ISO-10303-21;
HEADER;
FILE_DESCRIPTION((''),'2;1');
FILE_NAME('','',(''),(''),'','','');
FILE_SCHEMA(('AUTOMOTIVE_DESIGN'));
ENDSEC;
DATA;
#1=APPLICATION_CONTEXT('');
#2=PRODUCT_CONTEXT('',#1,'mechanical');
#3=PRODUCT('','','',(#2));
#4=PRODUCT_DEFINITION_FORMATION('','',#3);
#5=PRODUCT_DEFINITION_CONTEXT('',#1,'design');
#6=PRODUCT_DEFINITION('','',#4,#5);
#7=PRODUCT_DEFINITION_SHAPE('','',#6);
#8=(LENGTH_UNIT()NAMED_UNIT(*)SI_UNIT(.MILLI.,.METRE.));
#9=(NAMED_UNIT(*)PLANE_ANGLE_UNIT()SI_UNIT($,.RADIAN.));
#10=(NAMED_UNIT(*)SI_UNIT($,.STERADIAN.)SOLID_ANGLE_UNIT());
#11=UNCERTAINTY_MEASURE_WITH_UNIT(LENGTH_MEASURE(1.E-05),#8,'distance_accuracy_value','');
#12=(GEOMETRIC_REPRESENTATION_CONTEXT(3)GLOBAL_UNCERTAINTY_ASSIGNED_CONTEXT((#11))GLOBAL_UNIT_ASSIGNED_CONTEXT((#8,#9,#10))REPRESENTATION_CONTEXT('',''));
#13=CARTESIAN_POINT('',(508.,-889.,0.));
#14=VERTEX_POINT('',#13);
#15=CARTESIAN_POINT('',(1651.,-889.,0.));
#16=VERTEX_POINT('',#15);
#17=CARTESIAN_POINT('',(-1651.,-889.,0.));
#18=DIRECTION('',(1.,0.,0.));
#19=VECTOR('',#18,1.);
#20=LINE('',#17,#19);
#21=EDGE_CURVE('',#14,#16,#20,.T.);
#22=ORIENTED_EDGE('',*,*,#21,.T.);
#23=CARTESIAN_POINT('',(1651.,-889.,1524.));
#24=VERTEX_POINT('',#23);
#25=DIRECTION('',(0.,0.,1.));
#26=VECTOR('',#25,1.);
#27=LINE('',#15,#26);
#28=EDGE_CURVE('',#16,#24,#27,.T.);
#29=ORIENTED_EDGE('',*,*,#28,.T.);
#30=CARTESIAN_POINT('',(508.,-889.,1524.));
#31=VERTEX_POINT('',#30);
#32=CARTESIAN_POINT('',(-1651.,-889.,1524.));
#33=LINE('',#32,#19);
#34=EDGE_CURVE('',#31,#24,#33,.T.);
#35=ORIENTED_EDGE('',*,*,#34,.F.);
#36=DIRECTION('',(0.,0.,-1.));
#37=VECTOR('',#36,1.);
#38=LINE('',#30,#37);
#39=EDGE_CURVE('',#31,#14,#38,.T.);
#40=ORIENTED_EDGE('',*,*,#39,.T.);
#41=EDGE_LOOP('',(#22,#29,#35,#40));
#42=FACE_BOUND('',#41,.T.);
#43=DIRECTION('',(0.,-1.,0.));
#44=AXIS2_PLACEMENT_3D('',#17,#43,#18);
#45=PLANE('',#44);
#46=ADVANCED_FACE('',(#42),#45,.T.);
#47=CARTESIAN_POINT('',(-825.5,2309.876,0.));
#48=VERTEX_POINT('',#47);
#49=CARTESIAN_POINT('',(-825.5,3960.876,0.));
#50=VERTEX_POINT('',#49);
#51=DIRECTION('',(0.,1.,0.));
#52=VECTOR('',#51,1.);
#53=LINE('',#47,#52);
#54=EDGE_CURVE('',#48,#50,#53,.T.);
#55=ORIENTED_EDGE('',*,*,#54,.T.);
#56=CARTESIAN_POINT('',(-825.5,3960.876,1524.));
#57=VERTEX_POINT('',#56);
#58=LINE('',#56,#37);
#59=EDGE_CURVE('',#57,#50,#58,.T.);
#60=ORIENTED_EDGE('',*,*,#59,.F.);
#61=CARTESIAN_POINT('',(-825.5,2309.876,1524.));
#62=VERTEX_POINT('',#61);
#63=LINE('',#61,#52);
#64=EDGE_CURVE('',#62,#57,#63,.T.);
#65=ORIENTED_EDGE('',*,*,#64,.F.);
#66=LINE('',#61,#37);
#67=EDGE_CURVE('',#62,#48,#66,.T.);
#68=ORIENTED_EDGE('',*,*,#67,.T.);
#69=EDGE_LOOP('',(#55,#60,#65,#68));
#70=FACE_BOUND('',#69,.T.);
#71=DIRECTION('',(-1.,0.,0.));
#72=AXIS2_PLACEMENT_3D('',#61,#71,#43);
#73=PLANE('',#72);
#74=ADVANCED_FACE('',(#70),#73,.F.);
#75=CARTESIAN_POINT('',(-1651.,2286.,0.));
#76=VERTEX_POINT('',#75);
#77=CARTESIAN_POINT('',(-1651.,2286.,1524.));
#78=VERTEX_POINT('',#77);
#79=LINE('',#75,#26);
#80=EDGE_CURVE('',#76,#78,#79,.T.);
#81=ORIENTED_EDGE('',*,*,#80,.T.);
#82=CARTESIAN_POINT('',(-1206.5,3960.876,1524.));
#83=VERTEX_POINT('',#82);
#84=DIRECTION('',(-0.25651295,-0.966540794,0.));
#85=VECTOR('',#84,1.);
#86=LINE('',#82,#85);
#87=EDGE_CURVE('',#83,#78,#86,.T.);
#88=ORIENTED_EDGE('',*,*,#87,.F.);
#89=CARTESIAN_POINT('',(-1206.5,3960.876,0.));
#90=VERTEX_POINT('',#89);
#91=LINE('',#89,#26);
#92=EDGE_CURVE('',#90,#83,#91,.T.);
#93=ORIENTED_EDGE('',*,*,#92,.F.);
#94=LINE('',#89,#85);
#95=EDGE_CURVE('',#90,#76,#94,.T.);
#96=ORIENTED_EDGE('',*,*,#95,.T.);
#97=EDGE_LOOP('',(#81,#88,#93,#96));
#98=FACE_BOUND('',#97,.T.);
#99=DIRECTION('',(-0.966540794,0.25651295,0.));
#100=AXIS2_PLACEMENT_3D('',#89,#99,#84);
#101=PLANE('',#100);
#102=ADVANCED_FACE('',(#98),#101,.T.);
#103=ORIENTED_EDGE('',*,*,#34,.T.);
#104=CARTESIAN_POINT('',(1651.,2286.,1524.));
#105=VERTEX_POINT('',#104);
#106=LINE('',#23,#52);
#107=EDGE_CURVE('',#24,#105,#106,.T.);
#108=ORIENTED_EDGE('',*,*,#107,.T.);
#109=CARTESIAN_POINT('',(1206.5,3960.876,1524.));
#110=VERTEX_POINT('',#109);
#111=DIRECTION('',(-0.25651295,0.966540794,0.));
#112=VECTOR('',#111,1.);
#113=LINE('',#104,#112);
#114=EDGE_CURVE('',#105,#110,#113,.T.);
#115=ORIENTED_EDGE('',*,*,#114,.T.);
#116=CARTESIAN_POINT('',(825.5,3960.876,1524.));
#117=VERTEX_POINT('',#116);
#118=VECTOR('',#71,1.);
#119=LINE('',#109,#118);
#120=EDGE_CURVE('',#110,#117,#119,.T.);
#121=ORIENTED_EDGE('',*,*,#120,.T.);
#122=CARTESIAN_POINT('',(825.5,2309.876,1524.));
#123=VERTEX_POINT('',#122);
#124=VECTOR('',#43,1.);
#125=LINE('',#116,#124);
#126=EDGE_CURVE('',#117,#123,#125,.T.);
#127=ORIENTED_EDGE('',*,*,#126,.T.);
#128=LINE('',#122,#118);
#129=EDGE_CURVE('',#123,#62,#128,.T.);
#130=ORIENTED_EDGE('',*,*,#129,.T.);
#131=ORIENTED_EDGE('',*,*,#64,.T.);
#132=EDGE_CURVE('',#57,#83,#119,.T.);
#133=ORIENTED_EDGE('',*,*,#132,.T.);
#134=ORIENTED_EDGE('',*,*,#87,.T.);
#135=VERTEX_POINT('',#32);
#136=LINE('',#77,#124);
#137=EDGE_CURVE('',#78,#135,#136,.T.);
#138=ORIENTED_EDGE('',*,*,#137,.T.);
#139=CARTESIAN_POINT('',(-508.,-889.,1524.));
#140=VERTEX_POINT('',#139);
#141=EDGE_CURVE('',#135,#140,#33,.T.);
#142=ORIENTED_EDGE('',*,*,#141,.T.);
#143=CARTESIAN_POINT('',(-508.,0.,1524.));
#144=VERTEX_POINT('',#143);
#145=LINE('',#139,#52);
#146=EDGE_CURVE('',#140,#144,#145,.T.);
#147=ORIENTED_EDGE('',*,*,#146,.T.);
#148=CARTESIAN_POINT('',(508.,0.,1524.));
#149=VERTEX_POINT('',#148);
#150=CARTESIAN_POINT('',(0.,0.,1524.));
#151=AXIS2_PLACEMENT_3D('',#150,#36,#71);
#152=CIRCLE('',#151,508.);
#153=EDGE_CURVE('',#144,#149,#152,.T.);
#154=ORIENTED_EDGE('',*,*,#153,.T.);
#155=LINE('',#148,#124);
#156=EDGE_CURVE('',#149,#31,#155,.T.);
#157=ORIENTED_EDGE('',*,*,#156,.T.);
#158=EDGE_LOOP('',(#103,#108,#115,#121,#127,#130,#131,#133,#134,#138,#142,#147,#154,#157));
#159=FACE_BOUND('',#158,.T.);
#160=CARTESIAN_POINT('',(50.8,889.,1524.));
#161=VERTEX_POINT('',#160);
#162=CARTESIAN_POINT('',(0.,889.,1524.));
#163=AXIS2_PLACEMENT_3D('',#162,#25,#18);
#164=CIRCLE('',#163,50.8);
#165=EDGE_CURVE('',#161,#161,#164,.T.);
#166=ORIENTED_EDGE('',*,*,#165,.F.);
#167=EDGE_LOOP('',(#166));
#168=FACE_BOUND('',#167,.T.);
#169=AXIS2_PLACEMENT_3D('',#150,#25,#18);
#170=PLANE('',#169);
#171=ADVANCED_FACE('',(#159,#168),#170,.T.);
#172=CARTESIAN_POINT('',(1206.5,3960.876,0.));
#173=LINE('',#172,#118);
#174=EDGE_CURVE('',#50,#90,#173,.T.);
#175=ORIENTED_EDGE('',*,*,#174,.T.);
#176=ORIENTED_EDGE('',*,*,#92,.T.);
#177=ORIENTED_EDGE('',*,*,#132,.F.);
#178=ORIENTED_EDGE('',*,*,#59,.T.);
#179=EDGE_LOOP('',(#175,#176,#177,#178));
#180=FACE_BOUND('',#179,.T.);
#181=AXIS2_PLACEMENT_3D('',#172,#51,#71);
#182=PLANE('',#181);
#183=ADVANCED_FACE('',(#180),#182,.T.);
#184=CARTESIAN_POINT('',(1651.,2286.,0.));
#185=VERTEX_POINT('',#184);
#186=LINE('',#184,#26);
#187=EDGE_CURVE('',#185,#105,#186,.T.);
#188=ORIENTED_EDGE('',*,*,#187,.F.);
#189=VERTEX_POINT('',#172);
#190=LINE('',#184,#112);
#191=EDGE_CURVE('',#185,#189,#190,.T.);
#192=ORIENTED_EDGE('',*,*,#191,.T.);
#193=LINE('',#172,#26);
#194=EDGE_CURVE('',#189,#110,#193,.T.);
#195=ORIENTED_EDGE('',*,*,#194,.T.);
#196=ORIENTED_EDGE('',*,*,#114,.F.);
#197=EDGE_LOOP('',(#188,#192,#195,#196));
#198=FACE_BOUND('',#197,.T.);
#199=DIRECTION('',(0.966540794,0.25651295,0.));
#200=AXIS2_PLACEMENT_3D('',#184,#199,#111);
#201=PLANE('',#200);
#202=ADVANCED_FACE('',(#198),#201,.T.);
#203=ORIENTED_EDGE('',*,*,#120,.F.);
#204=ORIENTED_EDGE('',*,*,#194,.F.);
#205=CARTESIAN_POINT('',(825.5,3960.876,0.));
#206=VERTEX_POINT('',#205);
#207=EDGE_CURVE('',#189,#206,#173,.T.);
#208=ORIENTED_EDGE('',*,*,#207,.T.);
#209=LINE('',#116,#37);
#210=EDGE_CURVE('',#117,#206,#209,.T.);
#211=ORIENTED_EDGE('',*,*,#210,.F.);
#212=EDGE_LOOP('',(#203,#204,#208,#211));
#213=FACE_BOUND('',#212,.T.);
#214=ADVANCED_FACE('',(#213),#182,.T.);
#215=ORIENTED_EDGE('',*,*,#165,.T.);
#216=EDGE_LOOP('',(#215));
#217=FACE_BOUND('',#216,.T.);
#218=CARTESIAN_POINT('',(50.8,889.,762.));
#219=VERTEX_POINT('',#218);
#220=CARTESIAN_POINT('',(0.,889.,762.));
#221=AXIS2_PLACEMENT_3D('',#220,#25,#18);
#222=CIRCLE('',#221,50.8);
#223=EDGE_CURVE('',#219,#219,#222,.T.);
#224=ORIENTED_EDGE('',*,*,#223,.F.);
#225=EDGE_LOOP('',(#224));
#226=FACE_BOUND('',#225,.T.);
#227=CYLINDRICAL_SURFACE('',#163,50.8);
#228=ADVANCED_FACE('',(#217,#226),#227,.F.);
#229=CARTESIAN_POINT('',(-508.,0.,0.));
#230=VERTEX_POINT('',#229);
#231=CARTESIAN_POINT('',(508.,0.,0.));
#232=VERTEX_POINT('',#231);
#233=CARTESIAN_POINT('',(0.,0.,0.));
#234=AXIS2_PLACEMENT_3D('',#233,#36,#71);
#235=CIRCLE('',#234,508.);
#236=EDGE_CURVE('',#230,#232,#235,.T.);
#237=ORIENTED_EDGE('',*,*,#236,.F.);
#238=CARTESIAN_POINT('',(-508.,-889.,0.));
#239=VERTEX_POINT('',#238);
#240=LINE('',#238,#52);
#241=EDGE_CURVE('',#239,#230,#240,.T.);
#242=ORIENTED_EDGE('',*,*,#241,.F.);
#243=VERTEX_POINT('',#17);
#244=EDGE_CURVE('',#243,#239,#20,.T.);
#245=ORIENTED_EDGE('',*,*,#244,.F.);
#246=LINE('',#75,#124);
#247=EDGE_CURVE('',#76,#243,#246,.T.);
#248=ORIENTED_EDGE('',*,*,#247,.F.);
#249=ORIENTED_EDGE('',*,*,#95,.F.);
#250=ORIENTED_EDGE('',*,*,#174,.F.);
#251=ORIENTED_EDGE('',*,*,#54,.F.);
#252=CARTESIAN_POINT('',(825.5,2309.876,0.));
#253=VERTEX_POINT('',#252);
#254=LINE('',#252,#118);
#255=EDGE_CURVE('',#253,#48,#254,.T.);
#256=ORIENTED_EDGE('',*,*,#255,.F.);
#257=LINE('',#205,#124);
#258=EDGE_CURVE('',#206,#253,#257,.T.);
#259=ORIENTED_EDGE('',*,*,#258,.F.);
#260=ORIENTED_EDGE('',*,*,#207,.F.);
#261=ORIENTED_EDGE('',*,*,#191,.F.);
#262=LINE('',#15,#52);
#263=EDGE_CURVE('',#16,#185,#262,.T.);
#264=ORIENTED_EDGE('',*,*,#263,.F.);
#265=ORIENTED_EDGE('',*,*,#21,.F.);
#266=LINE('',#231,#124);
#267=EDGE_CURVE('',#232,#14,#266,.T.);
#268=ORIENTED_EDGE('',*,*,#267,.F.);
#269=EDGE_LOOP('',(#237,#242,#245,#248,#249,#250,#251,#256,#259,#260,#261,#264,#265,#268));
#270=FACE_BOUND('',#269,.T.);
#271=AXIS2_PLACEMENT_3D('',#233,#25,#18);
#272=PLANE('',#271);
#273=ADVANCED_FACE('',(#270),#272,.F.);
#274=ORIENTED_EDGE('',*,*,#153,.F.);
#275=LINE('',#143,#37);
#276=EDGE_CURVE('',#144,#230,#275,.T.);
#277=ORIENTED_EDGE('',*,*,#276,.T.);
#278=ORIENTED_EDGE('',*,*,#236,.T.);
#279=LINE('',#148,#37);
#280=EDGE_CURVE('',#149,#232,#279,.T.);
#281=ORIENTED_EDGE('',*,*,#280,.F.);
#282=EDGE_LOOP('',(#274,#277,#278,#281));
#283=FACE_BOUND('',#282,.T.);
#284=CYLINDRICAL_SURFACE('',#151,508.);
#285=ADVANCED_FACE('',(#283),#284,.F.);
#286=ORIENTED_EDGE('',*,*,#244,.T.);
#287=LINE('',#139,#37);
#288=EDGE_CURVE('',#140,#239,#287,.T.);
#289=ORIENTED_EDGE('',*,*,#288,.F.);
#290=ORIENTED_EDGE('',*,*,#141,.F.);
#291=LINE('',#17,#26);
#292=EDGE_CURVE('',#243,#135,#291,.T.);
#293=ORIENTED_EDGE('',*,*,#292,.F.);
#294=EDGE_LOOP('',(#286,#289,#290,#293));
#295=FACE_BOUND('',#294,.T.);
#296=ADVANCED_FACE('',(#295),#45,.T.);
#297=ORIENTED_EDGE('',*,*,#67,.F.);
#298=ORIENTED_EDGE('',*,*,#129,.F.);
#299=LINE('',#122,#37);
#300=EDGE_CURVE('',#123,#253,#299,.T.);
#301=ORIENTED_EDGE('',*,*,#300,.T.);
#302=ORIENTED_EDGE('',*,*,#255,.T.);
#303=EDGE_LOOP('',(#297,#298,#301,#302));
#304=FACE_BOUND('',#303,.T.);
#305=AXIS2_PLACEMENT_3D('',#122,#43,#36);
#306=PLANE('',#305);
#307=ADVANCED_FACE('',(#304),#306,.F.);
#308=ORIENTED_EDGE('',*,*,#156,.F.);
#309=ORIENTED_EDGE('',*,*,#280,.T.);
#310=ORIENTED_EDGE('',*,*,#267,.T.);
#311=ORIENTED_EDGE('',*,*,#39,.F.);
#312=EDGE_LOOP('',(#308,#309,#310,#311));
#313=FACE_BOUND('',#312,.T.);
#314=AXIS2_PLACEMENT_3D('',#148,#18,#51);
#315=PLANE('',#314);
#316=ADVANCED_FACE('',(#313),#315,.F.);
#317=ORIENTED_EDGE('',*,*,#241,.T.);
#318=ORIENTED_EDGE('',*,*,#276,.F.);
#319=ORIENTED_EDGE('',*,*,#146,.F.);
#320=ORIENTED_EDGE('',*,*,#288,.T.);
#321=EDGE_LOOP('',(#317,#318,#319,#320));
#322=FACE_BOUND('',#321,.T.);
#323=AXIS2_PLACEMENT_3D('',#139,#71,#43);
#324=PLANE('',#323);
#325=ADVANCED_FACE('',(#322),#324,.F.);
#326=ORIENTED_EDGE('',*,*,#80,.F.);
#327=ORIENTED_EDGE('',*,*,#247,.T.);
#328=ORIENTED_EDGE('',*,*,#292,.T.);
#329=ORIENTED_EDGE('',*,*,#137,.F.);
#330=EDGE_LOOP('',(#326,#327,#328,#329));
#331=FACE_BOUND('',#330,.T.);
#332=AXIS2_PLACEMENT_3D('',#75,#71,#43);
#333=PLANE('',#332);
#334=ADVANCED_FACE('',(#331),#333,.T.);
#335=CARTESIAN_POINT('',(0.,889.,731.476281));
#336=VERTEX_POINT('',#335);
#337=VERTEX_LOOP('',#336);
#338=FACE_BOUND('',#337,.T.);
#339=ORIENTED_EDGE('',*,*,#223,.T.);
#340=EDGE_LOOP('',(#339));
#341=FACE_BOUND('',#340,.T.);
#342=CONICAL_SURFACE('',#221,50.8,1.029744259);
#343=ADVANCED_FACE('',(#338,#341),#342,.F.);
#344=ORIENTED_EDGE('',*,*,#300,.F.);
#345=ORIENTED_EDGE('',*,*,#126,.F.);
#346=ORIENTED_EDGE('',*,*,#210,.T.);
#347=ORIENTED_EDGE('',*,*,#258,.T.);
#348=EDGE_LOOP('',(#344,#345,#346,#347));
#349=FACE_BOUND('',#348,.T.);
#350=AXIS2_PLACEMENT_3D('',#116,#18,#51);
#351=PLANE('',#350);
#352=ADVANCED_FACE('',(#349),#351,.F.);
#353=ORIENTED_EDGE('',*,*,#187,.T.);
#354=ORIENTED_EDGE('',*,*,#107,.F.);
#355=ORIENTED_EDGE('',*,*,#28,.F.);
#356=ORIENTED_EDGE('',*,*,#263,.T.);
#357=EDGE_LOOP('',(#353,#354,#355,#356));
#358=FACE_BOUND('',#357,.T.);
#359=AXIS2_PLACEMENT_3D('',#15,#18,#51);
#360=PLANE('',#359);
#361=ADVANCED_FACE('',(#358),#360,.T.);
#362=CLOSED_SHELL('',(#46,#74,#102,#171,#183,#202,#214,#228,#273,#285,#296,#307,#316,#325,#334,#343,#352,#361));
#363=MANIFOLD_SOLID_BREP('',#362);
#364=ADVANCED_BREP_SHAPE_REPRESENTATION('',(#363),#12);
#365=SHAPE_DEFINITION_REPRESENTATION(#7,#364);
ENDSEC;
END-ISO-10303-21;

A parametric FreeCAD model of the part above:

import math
import FreeCAD as App
import Part
import Sketcher

V = App.Vector
Q = App.Units.Quantity

doc = App.newDocument("Part")
params = doc.addObject("Spreadsheet::Sheet", "Params")
for row, (alias, value) in enumerate([
    ("sketch1_width", "130 in"),
    ("sketch1_width2", "95 in"),
    ("sketch1_height", "125 in"),
    ("pad1_length", "60 in"),
    ("sketch2_radius", "20 in"),
    ("sketch2_height", "35 in"),
    ("sketch3_width", "65 in"),
    ("sketch4_diameter", "4 in"),
    ("hole_diameter", "4 in"),
    ("hole_depth", "30 in"),
], start=1):
    params.set(f"A{row}", alias)
    params.set(f"B{row}", "=" + value)
    params.setAlias(f"B{row}", alias)

body = doc.addObject("PartDesign::Body", "Body")

# Sketch on XY plane
sketch1 = doc.addObject("Sketcher::SketchObject", "Sketch")
body.addObject(sketch1)
sketch1.AttachmentSupport = (doc.XY_Plane, [""])
sketch1.MapMode = "FlatFace"
sketch1.AttachmentOffset = App.Placement(V(0, 0, 60 * 25.4), App.Rotation())
sketch1.addGeometry(Part.LineSegment(V(-1651, 2286, 0), V(-1651, -889, 0)), False)
sketch1.addGeometry(Part.LineSegment(V(-1651, -889, 0), V(1651, -889, 0)), False)
sketch1.addGeometry(Part.LineSegment(V(1651, -889, 0), V(1651, 2286, 0)), False)
sketch1.addGeometry(Part.LineSegment(V(1651, 2286, 0), V(1206, 3961, 0)), False)
sketch1.addGeometry(Part.LineSegment(V(1206, 3961, 0), V(-1206, 3961, 0)), False)
sketch1.addGeometry(Part.LineSegment(V(-1206, 3961, 0), V(-1651, 2286, 0)), False)
sketch1.addConstraint(Sketcher.Constraint("Coincident", 0, 2, 1, 1))
sketch1.addConstraint(Sketcher.Constraint("Coincident", 1, 2, 2, 1))
sketch1.addConstraint(Sketcher.Constraint("Coincident", 2, 2, 3, 1))
sketch1.addConstraint(Sketcher.Constraint("Coincident", 3, 2, 4, 1))
sketch1.addConstraint(Sketcher.Constraint("Coincident", 4, 2, 5, 1))
sketch1.addConstraint(Sketcher.Constraint("Coincident", 5, 2, 0, 1))
sketch1.addConstraint(Sketcher.Constraint("Vertical", 0))
sketch1.addConstraint(Sketcher.Constraint("Horizontal", 1))
sketch1.addConstraint(Sketcher.Constraint("Vertical", 2))
sketch1.addConstraint(Sketcher.Constraint("Horizontal", 4))
sketch1.addConstraint(Sketcher.Constraint("Symmetric", 2, 2, 5, 2, -2))
sketch1.addConstraint(Sketcher.Constraint("Equal", 3, 5))
sketch1.addConstraint(Sketcher.Constraint("DistanceX", 1, 1, 1, 2, Q("130 in")))
sketch1.addConstraint(Sketcher.Constraint("DistanceX", 4, 2, 4, 1, Q("95 in")))
sketch1.addConstraint(Sketcher.Constraint("DistanceY", 0, 2, 0, 1, Q("125 in")))
sketch1.addConstraint(Sketcher.Constraint("DistanceY", 0, 2, -1, 1, Q("35 in")))
sketch1.addConstraint(Sketcher.Constraint("DistanceY", -1, 1, 3, 2, Q("155.94 in")))
sketch1.setExpression("Constraints[12]", "Params.sketch1_width")
sketch1.setExpression("Constraints[13]", "Params.sketch1_width2")
sketch1.setExpression("Constraints[14]", "Params.sketch1_height")
pad1 = doc.addObject("PartDesign::Pad", "Pad")
body.addObject(pad1)
pad1.Profile = sketch1
pad1.setExpression("Length", "Params.pad1_length")
pad1.Reversed = True

# Sketch on XY plane
sketch2 = doc.addObject("Sketcher::SketchObject", "Sketch001")
body.addObject(sketch2)
sketch2.AttachmentSupport = (doc.XY_Plane, [""])
sketch2.MapMode = "FlatFace"
sketch2.addGeometry(Part.LineSegment(V(508, -889, 0), V(-508, -889, 0)), False)
sketch2.addGeometry(Part.LineSegment(V(-508, -889, 0), V(-508, 0, 0)), False)
sketch2.addGeometry(Part.ArcOfCircle(Part.Circle(V(0, 0, 0), V(0, 0, 1), 508), math.radians(0), math.radians(180)), False)
sketch2.addGeometry(Part.LineSegment(V(508, 0, 0), V(508, -889, 0)), False)
sketch2.addConstraint(Sketcher.Constraint("Coincident", 0, 2, 1, 1))
sketch2.addConstraint(Sketcher.Constraint("Tangent", 1, 2, 2, 2))
sketch2.addConstraint(Sketcher.Constraint("Tangent", 2, 1, 3, 1))
sketch2.addConstraint(Sketcher.Constraint("Coincident", 3, 2, 0, 1))
sketch2.addConstraint(Sketcher.Constraint("Horizontal", 0))
sketch2.addConstraint(Sketcher.Constraint("Vertical", 1))
sketch2.addConstraint(Sketcher.Constraint("Vertical", 3))
sketch2.addConstraint(Sketcher.Constraint("Coincident", 2, 3, -1, 1))
sketch2.addConstraint(Sketcher.Constraint("Radius", 2, Q("20 in")))
sketch2.addConstraint(Sketcher.Constraint("DistanceY", 1, 1, 1, 2, Q("35 in")))
sketch2.setExpression("Constraints[8]", "Params.sketch2_radius")
sketch2.setExpression("Constraints[9]", "Params.sketch2_height")
pocket1 = doc.addObject("PartDesign::Pocket", "Pocket")
body.addObject(pocket1)
pocket1.Profile = sketch2
pocket1.Type = "ThroughAll"
pocket1.Reversed = True

# Sketch on XY plane
sketch3 = doc.addObject("Sketcher::SketchObject", "Sketch002")
body.addObject(sketch3)
sketch3.AttachmentSupport = (doc.XY_Plane, [""])
sketch3.MapMode = "FlatFace"
sketch3.addGeometry(Part.LineSegment(V(826, 3961, 0), V(826, 2310, 0)), False)
sketch3.addGeometry(Part.LineSegment(V(826, 2310, 0), V(-826, 2310, 0)), False)
sketch3.addGeometry(Part.LineSegment(V(-826, 2310, 0), V(-826, 3961, 0)), False)
sketch3.addGeometry(Part.LineSegment(V(-826, 3961, 0), V(826, 3961, 0)), False)
sketch3.addConstraint(Sketcher.Constraint("Coincident", 0, 2, 1, 1))
sketch3.addConstraint(Sketcher.Constraint("Coincident", 1, 2, 2, 1))
sketch3.addConstraint(Sketcher.Constraint("Coincident", 2, 2, 3, 1))
sketch3.addConstraint(Sketcher.Constraint("Coincident", 3, 2, 0, 1))
sketch3.addConstraint(Sketcher.Constraint("Vertical", 0))
sketch3.addConstraint(Sketcher.Constraint("Horizontal", 1))
sketch3.addConstraint(Sketcher.Constraint("Vertical", 2))
sketch3.addConstraint(Sketcher.Constraint("Horizontal", 3))
sketch3.addConstraint(Sketcher.Constraint("Equal", 3, 0))
sketch3.addConstraint(Sketcher.Constraint("DistanceX", 1, 2, 1, 1, Q("65 in")))
sketch3.addConstraint(Sketcher.Constraint("DistanceX", -1, 1, 0, 2, Q("32.5 in")))
sketch3.addConstraint(Sketcher.Constraint("DistanceY", -1, 1, 0, 2, Q("90.94 in")))
sketch3.setExpression("Constraints[9]", "Params.sketch3_width")
pocket2 = doc.addObject("PartDesign::Pocket", "Pocket001")
body.addObject(pocket2)
pocket2.Profile = sketch3
pocket2.Type = "ThroughAll"
pocket2.Reversed = True

# Sketch on XY plane
sketch4 = doc.addObject("Sketcher::SketchObject", "Sketch003")
body.addObject(sketch4)
sketch4.AttachmentSupport = (doc.XY_Plane, [""])
sketch4.MapMode = "FlatFace"
sketch4.AttachmentOffset = App.Placement(V(0, 0, 60 * 25.4), App.Rotation())
sketch4.addGeometry(Part.Circle(V(0, 889, 0), V(0, 0, 1), 51), False)
sketch4.addConstraint(Sketcher.Constraint("PointOnObject", 0, 3, -2))
sketch4.addConstraint(Sketcher.Constraint("Diameter", 0, Q("4 in")))
sketch4.addConstraint(Sketcher.Constraint("DistanceY", -1, 1, 0, 3, Q("35 in")))
sketch4.setExpression("Constraints[1]", "Params.sketch4_diameter")
doc.recompute()
hole = doc.addObject("PartDesign::Hole", "Hole")
body.addObject(hole)
hole.Profile = sketch4
hole.ThreadType = "None"
hole.setExpression("Diameter", "Params.hole_diameter")
hole.DepthType = "Dimension"
hole.setExpression("Depth", "Params.hole_depth")
hole.DrillPoint = "Angled"
hole.DrillPointAngle = 118

doc.recompute()
